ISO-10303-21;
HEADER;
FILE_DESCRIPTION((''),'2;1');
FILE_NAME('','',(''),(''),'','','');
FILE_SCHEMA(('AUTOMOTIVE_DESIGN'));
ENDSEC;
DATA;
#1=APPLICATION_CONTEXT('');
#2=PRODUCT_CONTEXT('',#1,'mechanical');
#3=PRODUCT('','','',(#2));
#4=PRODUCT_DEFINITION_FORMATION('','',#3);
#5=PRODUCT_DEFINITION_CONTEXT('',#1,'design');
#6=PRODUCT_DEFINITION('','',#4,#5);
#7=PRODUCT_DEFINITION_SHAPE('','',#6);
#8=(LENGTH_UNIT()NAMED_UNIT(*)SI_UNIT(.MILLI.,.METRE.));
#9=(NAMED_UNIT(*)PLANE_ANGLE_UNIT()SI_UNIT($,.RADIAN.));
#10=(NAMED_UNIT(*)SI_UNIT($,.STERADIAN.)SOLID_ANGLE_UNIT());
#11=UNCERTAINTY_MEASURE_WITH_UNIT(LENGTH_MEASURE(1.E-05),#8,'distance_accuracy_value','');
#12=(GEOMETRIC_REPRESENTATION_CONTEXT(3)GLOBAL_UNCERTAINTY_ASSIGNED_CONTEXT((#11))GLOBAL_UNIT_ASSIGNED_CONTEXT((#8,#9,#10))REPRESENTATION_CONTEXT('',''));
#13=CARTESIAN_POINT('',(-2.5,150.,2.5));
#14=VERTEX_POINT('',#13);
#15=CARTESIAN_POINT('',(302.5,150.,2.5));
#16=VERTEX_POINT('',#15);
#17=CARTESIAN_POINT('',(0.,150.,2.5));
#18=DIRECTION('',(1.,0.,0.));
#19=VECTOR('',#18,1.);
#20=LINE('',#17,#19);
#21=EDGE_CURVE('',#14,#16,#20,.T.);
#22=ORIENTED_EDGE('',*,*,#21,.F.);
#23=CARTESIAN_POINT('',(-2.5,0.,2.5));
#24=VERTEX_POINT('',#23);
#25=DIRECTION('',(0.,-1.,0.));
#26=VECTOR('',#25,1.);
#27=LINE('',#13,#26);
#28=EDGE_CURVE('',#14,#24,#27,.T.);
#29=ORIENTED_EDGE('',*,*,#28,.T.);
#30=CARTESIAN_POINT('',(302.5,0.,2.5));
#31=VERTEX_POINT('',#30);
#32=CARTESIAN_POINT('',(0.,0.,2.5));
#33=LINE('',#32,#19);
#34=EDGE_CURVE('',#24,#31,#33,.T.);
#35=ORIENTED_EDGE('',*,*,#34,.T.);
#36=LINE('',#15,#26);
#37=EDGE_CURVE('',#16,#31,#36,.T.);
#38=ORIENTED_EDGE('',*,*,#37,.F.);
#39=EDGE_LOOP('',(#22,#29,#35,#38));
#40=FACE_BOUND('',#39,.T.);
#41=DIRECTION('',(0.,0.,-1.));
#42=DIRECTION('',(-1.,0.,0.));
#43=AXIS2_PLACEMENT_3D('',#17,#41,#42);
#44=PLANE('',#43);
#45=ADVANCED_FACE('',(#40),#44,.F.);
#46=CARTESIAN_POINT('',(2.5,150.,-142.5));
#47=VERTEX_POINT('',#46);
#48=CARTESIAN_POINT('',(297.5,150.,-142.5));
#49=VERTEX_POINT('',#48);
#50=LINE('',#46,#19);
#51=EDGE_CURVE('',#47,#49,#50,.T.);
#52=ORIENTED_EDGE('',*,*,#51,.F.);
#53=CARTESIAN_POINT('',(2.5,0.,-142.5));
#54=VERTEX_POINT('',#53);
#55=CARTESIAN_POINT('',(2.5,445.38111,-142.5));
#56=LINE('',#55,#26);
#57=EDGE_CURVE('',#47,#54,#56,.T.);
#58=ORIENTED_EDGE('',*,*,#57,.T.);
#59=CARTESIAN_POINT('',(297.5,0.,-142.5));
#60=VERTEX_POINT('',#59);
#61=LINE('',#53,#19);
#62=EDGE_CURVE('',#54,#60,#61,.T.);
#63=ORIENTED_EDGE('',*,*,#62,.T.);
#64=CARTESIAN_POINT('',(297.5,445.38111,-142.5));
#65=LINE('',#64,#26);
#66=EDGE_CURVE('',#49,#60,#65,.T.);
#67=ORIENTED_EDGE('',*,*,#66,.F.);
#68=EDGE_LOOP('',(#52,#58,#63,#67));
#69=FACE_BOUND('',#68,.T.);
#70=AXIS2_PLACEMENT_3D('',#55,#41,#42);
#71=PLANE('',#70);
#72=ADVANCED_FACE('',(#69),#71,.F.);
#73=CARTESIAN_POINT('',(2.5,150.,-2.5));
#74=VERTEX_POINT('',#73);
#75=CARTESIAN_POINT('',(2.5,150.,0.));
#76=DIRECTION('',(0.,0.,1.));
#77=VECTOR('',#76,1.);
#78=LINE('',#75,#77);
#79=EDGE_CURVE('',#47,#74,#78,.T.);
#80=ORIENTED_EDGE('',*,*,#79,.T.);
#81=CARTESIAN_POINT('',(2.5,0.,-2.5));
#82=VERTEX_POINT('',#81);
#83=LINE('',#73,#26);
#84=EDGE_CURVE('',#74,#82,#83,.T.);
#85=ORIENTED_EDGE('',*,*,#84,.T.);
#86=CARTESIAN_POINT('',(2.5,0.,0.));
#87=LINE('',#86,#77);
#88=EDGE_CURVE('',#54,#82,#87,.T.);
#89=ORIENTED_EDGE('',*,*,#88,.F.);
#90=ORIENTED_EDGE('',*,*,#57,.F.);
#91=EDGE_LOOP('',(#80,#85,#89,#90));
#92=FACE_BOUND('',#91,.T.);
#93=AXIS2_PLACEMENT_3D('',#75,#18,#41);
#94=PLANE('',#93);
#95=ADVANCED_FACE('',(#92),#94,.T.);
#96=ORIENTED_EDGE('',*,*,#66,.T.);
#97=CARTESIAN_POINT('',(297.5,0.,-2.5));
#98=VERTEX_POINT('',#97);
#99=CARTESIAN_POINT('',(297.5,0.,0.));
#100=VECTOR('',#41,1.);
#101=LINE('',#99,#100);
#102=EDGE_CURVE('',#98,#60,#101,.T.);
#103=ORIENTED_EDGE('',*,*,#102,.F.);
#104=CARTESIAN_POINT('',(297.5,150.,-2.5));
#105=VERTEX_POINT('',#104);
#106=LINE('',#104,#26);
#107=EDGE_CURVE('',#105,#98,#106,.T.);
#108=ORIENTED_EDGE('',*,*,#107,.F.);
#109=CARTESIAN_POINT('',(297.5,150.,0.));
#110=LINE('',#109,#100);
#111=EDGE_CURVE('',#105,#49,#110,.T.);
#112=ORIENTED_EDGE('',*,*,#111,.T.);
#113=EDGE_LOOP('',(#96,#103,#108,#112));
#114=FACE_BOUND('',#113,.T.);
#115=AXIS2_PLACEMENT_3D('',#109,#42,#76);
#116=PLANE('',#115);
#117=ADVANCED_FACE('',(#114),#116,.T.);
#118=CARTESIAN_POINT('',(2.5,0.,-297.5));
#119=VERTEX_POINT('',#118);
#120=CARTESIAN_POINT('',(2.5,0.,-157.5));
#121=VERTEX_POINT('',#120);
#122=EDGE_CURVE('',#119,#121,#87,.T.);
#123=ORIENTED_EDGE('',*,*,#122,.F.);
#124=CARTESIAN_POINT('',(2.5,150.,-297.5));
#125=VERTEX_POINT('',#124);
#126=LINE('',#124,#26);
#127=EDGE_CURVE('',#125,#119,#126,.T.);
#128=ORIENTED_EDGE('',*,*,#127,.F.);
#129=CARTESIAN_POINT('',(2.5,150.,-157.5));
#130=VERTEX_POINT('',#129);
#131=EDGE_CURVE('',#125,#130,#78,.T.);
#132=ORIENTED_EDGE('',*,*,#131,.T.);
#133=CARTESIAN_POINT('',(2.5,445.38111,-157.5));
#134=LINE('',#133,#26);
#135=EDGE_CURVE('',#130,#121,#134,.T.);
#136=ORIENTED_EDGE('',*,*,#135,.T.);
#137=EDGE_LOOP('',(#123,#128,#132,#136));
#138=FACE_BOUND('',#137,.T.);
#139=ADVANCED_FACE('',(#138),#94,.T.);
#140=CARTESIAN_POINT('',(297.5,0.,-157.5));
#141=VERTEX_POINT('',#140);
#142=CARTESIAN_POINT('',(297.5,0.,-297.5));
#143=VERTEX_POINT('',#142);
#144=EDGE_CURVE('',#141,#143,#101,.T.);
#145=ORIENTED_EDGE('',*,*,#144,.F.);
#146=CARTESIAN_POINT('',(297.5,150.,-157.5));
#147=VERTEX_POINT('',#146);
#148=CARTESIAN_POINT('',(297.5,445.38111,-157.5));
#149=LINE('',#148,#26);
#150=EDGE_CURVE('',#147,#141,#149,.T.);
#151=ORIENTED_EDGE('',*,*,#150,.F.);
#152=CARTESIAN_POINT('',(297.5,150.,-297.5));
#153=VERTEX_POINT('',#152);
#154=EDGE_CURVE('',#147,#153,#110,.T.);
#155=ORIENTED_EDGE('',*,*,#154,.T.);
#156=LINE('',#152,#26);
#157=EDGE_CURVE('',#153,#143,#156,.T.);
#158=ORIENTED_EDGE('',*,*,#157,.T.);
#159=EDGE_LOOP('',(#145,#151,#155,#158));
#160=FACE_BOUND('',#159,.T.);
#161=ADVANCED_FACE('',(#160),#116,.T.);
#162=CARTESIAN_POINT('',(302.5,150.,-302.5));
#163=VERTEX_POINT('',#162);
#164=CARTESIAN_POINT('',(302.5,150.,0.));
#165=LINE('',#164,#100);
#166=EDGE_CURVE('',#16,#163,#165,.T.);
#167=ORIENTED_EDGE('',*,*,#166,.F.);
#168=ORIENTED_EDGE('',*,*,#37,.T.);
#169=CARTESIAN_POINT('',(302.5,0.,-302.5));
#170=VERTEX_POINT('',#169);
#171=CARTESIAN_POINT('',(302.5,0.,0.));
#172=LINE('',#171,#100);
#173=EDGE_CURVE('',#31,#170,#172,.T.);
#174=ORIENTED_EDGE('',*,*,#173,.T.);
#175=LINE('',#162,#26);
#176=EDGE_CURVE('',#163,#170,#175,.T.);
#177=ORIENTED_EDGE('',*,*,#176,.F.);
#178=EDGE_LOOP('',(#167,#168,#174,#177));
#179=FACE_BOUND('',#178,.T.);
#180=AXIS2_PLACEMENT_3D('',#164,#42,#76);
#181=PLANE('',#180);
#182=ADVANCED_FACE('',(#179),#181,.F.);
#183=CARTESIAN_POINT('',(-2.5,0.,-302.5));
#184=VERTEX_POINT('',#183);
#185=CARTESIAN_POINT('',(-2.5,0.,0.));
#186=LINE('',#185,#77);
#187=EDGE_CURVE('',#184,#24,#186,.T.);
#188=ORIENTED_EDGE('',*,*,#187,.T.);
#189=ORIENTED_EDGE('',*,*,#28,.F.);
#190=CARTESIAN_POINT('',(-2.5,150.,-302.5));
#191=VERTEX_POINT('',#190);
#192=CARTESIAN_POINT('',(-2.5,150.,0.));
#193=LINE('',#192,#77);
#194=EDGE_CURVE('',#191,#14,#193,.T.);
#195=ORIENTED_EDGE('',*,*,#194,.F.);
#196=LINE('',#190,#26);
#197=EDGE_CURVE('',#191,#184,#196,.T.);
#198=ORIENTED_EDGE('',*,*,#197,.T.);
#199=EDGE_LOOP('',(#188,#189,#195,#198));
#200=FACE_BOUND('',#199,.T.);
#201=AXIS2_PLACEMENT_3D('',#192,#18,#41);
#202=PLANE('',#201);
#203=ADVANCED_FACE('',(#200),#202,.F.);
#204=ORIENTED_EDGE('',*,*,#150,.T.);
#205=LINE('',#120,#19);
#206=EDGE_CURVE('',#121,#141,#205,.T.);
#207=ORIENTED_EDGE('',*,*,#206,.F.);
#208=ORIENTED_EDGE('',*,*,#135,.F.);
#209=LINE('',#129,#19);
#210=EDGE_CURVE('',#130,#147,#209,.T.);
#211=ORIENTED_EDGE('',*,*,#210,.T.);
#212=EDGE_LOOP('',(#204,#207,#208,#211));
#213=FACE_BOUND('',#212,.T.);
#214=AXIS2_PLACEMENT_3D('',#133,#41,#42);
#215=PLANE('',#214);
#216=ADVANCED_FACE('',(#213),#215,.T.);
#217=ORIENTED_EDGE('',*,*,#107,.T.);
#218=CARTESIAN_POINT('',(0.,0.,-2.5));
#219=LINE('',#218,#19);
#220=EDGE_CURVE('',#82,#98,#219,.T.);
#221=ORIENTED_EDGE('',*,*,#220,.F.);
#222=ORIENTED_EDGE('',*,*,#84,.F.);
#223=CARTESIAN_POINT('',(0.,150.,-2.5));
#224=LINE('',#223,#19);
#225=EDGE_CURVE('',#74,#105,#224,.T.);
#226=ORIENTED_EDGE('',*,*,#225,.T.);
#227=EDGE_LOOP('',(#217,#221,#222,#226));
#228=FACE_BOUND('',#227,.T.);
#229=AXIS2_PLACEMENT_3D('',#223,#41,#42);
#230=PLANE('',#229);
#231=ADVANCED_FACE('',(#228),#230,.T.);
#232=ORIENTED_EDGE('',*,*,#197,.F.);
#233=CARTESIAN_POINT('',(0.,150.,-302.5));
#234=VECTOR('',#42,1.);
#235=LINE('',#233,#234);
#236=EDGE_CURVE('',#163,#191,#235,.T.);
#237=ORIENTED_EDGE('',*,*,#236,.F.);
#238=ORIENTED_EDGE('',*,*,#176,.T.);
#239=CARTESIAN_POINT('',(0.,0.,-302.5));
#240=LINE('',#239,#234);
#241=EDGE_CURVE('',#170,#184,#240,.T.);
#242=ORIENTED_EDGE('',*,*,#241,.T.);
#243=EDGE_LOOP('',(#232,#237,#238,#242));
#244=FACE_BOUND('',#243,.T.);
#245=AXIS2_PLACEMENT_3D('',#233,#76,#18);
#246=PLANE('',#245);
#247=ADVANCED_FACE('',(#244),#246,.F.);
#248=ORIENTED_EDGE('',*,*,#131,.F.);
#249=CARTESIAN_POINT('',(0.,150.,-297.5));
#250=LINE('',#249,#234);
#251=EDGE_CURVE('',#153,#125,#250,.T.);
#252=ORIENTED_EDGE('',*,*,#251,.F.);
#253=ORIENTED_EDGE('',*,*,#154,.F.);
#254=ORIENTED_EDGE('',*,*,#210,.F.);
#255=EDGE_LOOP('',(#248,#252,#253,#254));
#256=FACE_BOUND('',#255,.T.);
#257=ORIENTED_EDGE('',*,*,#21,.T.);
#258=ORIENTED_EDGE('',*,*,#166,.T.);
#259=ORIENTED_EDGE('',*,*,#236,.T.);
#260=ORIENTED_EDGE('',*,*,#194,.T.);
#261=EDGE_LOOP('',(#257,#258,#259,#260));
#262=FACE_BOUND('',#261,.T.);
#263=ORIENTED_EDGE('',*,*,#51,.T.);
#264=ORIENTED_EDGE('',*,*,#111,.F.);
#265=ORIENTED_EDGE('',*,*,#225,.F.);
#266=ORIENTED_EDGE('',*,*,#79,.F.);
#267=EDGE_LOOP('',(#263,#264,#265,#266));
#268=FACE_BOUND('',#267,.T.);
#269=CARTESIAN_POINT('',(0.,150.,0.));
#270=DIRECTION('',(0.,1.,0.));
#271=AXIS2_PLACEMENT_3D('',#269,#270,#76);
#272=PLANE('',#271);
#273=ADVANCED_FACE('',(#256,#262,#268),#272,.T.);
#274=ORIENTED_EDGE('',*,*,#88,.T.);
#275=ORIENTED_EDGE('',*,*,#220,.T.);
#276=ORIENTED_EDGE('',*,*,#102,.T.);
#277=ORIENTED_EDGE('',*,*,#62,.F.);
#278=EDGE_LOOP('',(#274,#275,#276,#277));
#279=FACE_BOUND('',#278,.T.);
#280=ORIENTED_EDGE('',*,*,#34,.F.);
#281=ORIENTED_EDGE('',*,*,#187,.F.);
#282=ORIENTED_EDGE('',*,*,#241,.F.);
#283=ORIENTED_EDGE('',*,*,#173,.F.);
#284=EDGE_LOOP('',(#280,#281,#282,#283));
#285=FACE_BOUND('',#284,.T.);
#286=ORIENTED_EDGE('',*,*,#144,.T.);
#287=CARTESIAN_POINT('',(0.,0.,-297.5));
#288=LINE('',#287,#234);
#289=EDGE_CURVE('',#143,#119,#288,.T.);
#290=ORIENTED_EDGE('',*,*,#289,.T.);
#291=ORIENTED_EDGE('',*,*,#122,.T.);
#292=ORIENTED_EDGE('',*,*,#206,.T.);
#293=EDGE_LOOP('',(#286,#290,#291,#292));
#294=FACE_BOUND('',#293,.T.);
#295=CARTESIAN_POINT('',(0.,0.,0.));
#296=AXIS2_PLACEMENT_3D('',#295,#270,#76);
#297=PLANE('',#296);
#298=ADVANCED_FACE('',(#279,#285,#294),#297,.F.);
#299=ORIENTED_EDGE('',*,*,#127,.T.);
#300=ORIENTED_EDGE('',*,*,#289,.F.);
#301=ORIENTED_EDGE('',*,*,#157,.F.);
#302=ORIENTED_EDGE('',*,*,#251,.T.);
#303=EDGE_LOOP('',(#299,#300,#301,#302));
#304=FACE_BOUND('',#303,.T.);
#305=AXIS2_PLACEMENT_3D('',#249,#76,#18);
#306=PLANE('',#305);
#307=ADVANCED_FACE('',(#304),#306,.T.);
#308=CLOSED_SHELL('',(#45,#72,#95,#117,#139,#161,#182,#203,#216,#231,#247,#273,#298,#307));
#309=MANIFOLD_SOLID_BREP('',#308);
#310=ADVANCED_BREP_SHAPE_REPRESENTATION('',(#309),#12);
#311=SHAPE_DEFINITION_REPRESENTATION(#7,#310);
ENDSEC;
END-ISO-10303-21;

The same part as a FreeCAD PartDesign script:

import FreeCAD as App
import Part
import Sketcher
Q = App.Units.Quantity


def add_polygon(sketch, points):
    """Adds a closed chain of lines whose ends are joined by coincident constraints."""
    first, n = sketch.GeometryCount, len(points)
    for a, b in zip(points, points[1:] + points[:1]):
        sketch.addGeometry(Part.LineSegment(App.Vector(*a, 0), App.Vector(*b, 0)), False)
    for i in range(n):
        sketch.addConstraint(Sketcher.Constraint("Coincident", first + i, 2, first + (i + 1) % n, 1))

doc = App.newDocument("Part")
params = doc.addObject("Spreadsheet::Sheet", "Params")
for row, (alias, value) in enumerate([
    ("sketch1_width", "305 mm"),
    ("sketch1_width2", "295 mm"),
    ("pad1_length", "150 mm"),
    ("sketch2_width", "295 mm"),
    ("sketch2_height", "15 mm"),
    ("pad2_length", "150 mm"),
], start=1):
    params.set(f"A{row}", alias)
    params.set(f"B{row}", "=" + value)
    params.setAlias(f"B{row}", alias)

body = doc.addObject("PartDesign::Body", "Body")

sketch1 = body.newObject("Sketcher::SketchObject", "Sketch")
sketch1.AttachmentSupport = (doc.getObject("XZ_Plane"), [""])
sketch1.MapMode = "FlatFace"
add_polygon(sketch1, [(-2, -302), (-2, 2), (302, 2), (302, -302)])
add_polygon(sketch1, [(298, -2), (2, -2), (2, -298), (298, -298)])
sketch1.addConstraint([
    Sketcher.Constraint("Vertical", 0),
    Sketcher.Constraint("Horizontal", 1),
    Sketcher.Constraint("Vertical", 2),
    Sketcher.Constraint("Horizontal", 3),
    Sketcher.Constraint("Horizontal", 4),
    Sketcher.Constraint("Vertical", 5),
    Sketcher.Constraint("Horizontal", 6),
    Sketcher.Constraint("Vertical", 7),
    Sketcher.Constraint("Symmetric", 0, 2, 4, 2, -1, 1),
    Sketcher.Constraint("Equal", 3, 0),
    Sketcher.Constraint("Equal", 6, 5),
    Sketcher.Constraint("DistanceX", 1, 1, 1, 2, Q("305 mm")),
    Sketcher.Constraint("DistanceX", 4, 2, 4, 1, Q("295 mm")),
    Sketcher.Constraint("DistanceX", 0, 2, 4, 2, Q("5 mm")),
    Sketcher.Constraint("DistanceY", 4, 2, 0, 2, Q("5 mm")),
])
sketch1.setExpression("Constraints[19]", "Params.sketch1_width")
sketch1.setExpression("Constraints[20]", "Params.sketch1_width2")
pad1 = body.newObject("PartDesign::Pad", "Pad")
pad1.Profile = sketch1
pad1.setExpression("Length", "Params.pad1_length")
pad1.Reversed = True

sketch2 = body.newObject("Sketcher::SketchObject", "Sketch001")
sketch2.AttachmentSupport = (doc.getObject("XZ_Plane"), [""])
sketch2.MapMode = "FlatFace"
add_polygon(sketch2, [(2, -158), (2, -142), (298, -142), (298, -158)])
sketch2.addConstraint([
    Sketcher.Constraint("Vertical", 0),
    Sketcher.Constraint("Horizontal", 1),
    Sketcher.Constraint("Vertical", 2),
    Sketcher.Constraint("Horizontal", 3),
    Sketcher.Constraint("DistanceX", 1, 1, 1, 2, Q("295 mm")),
    Sketcher.Constraint("DistanceY", 0, 1, 0, 2, Q("15 mm")),
    Sketcher.Constraint("DistanceX", -1, 1, 0, 2, Q("2.5 mm")),
    Sketcher.Constraint("DistanceY", 0, 2, -1, 1, Q("142.5 mm")),
])
sketch2.setExpression("Constraints[8]", "Params.sketch2_width")
sketch2.setExpression("Constraints[9]", "Params.sketch2_height")
pad2 = body.newObject("PartDesign::Pad", "Pad001")
pad2.Profile = sketch2
pad2.setExpression("Length", "Params.pad2_length")
pad2.Reversed = True

doc.recompute()
